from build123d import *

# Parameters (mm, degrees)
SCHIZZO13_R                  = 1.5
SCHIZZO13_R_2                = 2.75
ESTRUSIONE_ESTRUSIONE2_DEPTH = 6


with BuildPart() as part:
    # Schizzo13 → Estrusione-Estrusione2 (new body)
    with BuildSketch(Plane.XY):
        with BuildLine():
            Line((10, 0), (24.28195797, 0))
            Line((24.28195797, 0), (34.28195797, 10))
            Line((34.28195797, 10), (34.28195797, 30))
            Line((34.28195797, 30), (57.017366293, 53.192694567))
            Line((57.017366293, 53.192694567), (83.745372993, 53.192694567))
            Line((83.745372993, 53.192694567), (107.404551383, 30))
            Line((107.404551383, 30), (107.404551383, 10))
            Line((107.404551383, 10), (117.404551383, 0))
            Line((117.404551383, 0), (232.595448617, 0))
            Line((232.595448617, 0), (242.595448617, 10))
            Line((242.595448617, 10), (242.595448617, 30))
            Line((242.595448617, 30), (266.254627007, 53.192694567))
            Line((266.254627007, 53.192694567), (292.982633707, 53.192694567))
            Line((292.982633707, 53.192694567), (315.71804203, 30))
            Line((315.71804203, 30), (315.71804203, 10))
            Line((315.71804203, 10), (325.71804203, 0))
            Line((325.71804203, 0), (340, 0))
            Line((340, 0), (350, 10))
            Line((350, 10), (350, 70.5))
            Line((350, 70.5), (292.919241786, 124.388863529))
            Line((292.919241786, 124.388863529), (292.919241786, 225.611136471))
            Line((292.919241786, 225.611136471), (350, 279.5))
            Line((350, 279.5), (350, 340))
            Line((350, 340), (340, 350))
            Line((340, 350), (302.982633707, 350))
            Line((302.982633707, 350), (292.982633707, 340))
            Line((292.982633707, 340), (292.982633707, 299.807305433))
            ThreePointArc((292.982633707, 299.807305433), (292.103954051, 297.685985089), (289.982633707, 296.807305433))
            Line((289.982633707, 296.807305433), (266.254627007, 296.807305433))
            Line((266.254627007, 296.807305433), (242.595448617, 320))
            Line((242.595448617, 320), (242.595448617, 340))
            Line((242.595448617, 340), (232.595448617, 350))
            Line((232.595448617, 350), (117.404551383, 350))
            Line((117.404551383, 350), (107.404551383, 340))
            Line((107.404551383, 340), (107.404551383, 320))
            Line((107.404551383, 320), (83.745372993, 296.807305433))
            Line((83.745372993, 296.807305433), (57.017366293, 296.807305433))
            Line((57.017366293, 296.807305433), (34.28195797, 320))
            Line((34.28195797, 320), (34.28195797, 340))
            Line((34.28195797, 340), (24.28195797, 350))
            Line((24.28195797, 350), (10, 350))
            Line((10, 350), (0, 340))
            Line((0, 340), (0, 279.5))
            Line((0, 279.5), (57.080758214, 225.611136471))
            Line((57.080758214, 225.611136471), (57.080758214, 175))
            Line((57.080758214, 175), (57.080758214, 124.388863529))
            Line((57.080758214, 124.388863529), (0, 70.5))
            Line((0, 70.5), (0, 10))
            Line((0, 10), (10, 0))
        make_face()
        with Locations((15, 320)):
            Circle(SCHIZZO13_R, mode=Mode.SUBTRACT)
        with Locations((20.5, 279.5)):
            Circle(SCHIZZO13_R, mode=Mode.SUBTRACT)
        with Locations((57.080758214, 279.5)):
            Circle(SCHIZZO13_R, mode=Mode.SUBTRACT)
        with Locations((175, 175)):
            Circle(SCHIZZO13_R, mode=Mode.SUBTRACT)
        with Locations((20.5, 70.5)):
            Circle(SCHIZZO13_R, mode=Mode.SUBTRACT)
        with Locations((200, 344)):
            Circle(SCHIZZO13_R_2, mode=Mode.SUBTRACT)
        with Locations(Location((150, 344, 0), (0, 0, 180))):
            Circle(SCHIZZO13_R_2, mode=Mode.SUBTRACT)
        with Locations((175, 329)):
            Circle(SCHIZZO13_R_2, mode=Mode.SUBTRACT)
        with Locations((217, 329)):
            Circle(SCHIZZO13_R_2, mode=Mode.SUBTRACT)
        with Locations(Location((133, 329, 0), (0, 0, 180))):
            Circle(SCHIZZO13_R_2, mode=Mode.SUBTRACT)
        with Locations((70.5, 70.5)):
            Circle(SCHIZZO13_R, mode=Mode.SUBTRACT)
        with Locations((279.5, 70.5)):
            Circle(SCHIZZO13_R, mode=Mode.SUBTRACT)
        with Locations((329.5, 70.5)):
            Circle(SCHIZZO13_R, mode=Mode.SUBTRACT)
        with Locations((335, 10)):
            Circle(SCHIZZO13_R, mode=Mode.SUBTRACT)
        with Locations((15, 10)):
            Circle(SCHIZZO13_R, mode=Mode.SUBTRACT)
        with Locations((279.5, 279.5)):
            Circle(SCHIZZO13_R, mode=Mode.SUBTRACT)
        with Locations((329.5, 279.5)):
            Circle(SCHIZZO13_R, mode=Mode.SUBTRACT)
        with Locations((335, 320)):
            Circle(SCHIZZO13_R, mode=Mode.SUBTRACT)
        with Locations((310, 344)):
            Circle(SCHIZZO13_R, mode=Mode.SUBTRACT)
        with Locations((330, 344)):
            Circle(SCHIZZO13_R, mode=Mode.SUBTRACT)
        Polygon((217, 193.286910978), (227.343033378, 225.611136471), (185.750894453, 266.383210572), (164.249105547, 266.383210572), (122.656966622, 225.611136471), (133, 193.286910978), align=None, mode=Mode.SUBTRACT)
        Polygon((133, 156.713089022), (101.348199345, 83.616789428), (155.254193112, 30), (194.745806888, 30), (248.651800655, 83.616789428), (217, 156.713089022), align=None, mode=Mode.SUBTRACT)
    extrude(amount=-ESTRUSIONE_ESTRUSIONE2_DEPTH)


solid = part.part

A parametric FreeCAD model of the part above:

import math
import FreeCAD as App
import Part
import Sketcher


def add_polygon(sketch, points):
    """Adds a closed chain of lines whose ends are joined by coincident constraints."""
    first, n = sketch.GeometryCount, len(points)
    for a, b in zip(points, points[1:] + points[:1]):
        sketch.addGeometry(Part.LineSegment(App.Vector(*a, 0), App.Vector(*b, 0)), False)
    for i in range(n):
        sketch.addConstraint(Sketcher.Constraint("Coincident", first + i, 2, first + (i + 1) % n, 1))

doc = App.newDocument("Part")
body = doc.addObject("PartDesign::Body", "Body")

# Sketch on XY plane
sketch1 = body.newObject("Sketcher::SketchObject", "Sketch")
sketch1.AttachmentSupport = (doc.getObject("XY_Plane"), [""])
sketch1.MapMode = "FlatFace"
sketch1.addGeometry(Part.LineSegment(App.Vector(10, 0, 0), App.Vector(24.3, 0, 0)), False)  # 0
sketch1.addGeometry(Part.LineSegment(App.Vector(24.3, 0, 0), App.Vector(34.3, 10, 0)), False)  # 1
sketch1.addGeometry(Part.LineSegment(App.Vector(34.3, 10, 0), App.Vector(34.3, 30, 0)), False)  # 2
sketch1.addGeometry(Part.LineSegment(App.Vector(34.3, 30, 0), App.Vector(57, 53.2, 0)), False)  # 3
sketch1.addGeometry(Part.LineSegment(App.Vector(57, 53.2, 0), App.Vector(83.7, 53.2, 0)), False)  # 4
sketch1.addGeometry(Part.LineSegment(App.Vector(83.7, 53.2, 0), App.Vector(107.4, 30, 0)), False)  # 5
sketch1.addGeometry(Part.LineSegment(App.Vector(107.4, 30, 0), App.Vector(107.4, 10, 0)), False)  # 6
sketch1.addGeometry(Part.LineSegment(App.Vector(107.4, 10, 0), App.Vector(117.4, 0, 0)), False)  # 7
sketch1.addGeometry(Part.LineSegment(App.Vector(117.4, 0, 0), App.Vector(232.6, 0, 0)), False)  # 8
sketch1.addGeometry(Part.LineSegment(App.Vector(232.6, 0, 0), App.Vector(242.6, 10, 0)), False)  # 9
sketch1.addGeometry(Part.LineSegment(App.Vector(242.6, 10, 0), App.Vector(242.6, 30, 0)), False)  # 10
sketch1.addGeometry(Part.LineSegment(App.Vector(242.6, 30, 0), App.Vector(266.3, 53.2, 0)), False)  # 11
sketch1.addGeometry(Part.LineSegment(App.Vector(266.3, 53.2, 0), App.Vector(293, 53.2, 0)), False)  # 12
sketch1.addGeometry(Part.LineSegment(App.Vector(293, 53.2, 0), App.Vector(315.7, 30, 0)), False)  # 13
sketch1.addGeometry(Part.LineSegment(App.Vector(315.7, 30, 0), App.Vector(315.7, 10, 0)), False)  # 14
sketch1.addGeometry(Part.LineSegment(App.Vector(315.7, 10, 0), App.Vector(325.7, 0, 0)), False)  # 15
sketch1.addGeometry(Part.LineSegment(App.Vector(325.7, 0, 0), App.Vector(340, 0, 0)), False)  # 16
sketch1.addGeometry(Part.LineSegment(App.Vector(340, 0, 0), App.Vector(350, 10, 0)), False)  # 17
sketch1.addGeometry(Part.LineSegment(App.Vector(350, 10, 0), App.Vector(350, 70.5, 0)), False)  # 18
sketch1.addGeometry(Part.LineSegment(App.Vector(350, 70.5, 0), App.Vector(292.9, 124.4, 0)), False)  # 19
sketch1.addGeometry(Part.LineSegment(App.Vector(292.9, 124.4, 0), App.Vector(292.9, 225.6, 0)), False)  # 20
sketch1.addGeometry(Part.LineSegment(App.Vector(292.9, 225.6, 0), App.Vector(350, 279.5, 0)), False)  # 21
sketch1.addGeometry(Part.LineSegment(App.Vector(350, 279.5, 0), App.Vector(350, 340, 0)), False)  # 22
sketch1.addGeometry(Part.LineSegment(App.Vector(350, 340, 0), App.Vector(340, 350, 0)), False)  # 23
sketch1.addGeometry(Part.LineSegment(App.Vector(340, 350, 0), App.Vector(303, 350, 0)), False)  # 24
sketch1.addGeometry(Part.LineSegment(App.Vector(303, 350, 0), App.Vector(293, 340, 0)), False)  # 25
sketch1.addGeometry(Part.LineSegment(App.Vector(293, 340, 0), App.Vector(293, 299.8, 0)), False)  # 26
sketch1.addGeometry(Part.ArcOfCircle(Part.Circle(App.Vector(290, 299.8, 0), App.Vector(0, 0, 1), 3), math.radians(-90), math.radians(0)), False)  # 27
sketch1.addGeometry(Part.LineSegment(App.Vector(290, 296.8, 0), App.Vector(266.3, 296.8, 0)), False)  # 28
sketch1.addGeometry(Part.LineSegment(App.Vector(266.3, 296.8, 0), App.Vector(242.6, 320, 0)), False)  # 29
sketch1.addGeometry(Part.LineSegment(App.Vector(242.6, 320, 0), App.Vector(242.6, 340, 0)), False)  # 30
sketch1.addGeometry(Part.LineSegment(App.Vector(242.6, 340, 0), App.Vector(232.6, 350, 0)), False)  # 31
sketch1.addGeometry(Part.LineSegment(App.Vector(232.6, 350, 0), App.Vector(117.4, 350, 0)), False)  # 32
sketch1.addGeometry(Part.LineSegment(App.Vector(117.4, 350, 0), App.Vector(107.4, 340, 0)), False)  # 33
sketch1.addGeometry(Part.LineSegment(App.Vector(107.4, 340, 0), App.Vector(107.4, 320, 0)), False)  # 34
sketch1.addGeometry(Part.LineSegment(App.Vector(107.4, 320, 0), App.Vector(83.7, 296.8, 0)), False)  # 35
sketch1.addGeometry(Part.LineSegment(App.Vector(83.7, 296.8, 0), App.Vector(57, 296.8, 0)), False)  # 36
sketch1.addGeometry(Part.LineSegment(App.Vector(57, 296.8, 0), App.Vector(34.3, 320, 0)), False)  # 37
sketch1.addGeometry(Part.LineSegment(App.Vector(34.3, 320, 0), App.Vector(34.3, 340, 0)), False)  # 38
sketch1.addGeometry(Part.LineSegment(App.Vector(34.3, 340, 0), App.Vector(24.3, 350, 0)), False)  # 39
sketch1.addGeometry(Part.LineSegment(App.Vector(24.3, 350, 0), App.Vector(10, 350, 0)), False)  # 40
sketch1.addGeometry(Part.LineSegment(App.Vector(10, 350, 0), App.Vector(0, 340, 0)), False)  # 41
sketch1.addGeometry(Part.LineSegment(App.Vector(0, 340, 0), App.Vector(0, 279.5, 0)), False)  # 42
sketch1.addGeometry(Part.LineSegment(App.Vector(0, 279.5, 0), App.Vector(57.1, 225.6, 0)), False)  # 43
sketch1.addGeometry(Part.LineSegment(App.Vector(57.1, 225.6, 0), App.Vector(57.1, 124.4, 0)), False)  # 44
sketch1.addGeometry(Part.LineSegment(App.Vector(57.1, 124.4, 0), App.Vector(0, 70.5, 0)), False)  # 45
sketch1.addGeometry(Part.LineSegment(App.Vector(0, 70.5, 0), App.Vector(0, 10, 0)), False)  # 46
sketch1.addGeometry(Part.LineSegment(App.Vector(0, 10, 0), App.Vector(10, 0, 0)), False)  # 47
sketch1.addGeometry(Part.Circle(App.Vector(15, 10, 0), App.Vector(0, 0, 1), 1.5), False)  # 48
sketch1.addGeometry(Part.Circle(App.Vector(20.5, 70.5, 0), App.Vector(0, 0, 1), 1.5), False)  # 49
sketch1.addGeometry(Part.Circle(App.Vector(70.5, 70.5, 0), App.Vector(0, 0, 1), 1.5), False)  # 50
sketch1.addGeometry(Part.Circle(App.Vector(335, 10, 0), App.Vector(0, 0, 1), 1.5), False)  # 51
sketch1.addGeometry(Part.Circle(App.Vector(279.5, 70.5, 0), App.Vector(0, 0, 1), 1.5), False)  # 52
sketch1.addGeometry(Part.Circle(App.Vector(329.5, 70.5, 0), App.Vector(0, 0, 1), 1.5), False)  # 53
add_polygon(sketch1, [(101.3, 83.6), (133, 156.7), (217, 156.7), (248.7, 83.6), (194.7, 30), (155.3, 30)])  # lines 54-59
sketch1.addGeometry(Part.Circle(App.Vector(175, 175, 0), App.Vector(0, 0, 1), 1.5), False)  # 60
sketch1.addGeometry(Part.Circle(App.Vector(20.5, 279.5, 0), App.Vector(0, 0, 1), 1.5), False)  # 61
sketch1.addGeometry(Part.Circle(App.Vector(57.1, 279.5, 0), App.Vector(0, 0, 1), 1.5), False)  # 62
sketch1.addGeometry(Part.Circle(App.Vector(15, 320, 0), App.Vector(0, 0, 1), 1.5), False)  # 63
sketch1.addGeometry(Part.Circle(App.Vector(133, 329, 0), App.Vector(0, 0, 1), 2.8), False)  # 64
sketch1.addGeometry(Part.Circle(App.Vector(150, 344, 0), App.Vector(0, 0, 1), 2.8), False)  # 65
add_polygon(sketch1, [(227.3, 225.6), (217, 193.3), (133, 193.3), (122.7, 225.6), (164.2, 266.4), (185.8, 266.4)])  # lines 66-71
sketch1.addGeometry(Part.Circle(App.Vector(175, 329, 0), App.Vector(0, 0, 1), 2.8), False)  # 72
sketch1.addGeometry(Part.Circle(App.Vector(200, 344, 0), App.Vector(0, 0, 1), 2.8), False)  # 73
sketch1.addGeometry(Part.Circle(App.Vector(217, 329, 0), App.Vector(0, 0, 1), 2.8), False)  # 74
sketch1.addGeometry(Part.Circle(App.Vector(279.5, 279.5, 0), App.Vector(0, 0, 1), 1.5), False)  # 75
sketch1.addGeometry(Part.Circle(App.Vector(329.5, 279.5, 0), App.Vector(0, 0, 1), 1.5), False)  # 76
sketch1.addGeometry(Part.Circle(App.Vector(335, 320, 0), App.Vector(0, 0, 1), 1.5), False)  # 77
sketch1.addGeometry(Part.Circle(App.Vector(310, 344, 0), App.Vector(0, 0, 1), 1.5), False)  # 78
sketch1.addGeometry(Part.Circle(App.Vector(330, 344, 0), App.Vector(0, 0, 1), 1.5), False)  # 79
sketch1.addConstraint([
    Sketcher.Constraint("Coincident", 0, 2, 1, 1),
    Sketcher.Constraint("Coincident", 1, 2, 2, 1),
    Sketcher.Constraint("Coincident", 2, 2, 3, 1),
    Sketcher.Constraint("Coincident", 3, 2, 4, 1),
    Sketcher.Constraint("Coincident", 4, 2, 5, 1),
    Sketcher.Constraint("Coincident", 5, 2, 6, 1),
    Sketcher.Constraint("Coincident", 6, 2, 7, 1),
    Sketcher.Constraint("Coincident", 7, 2, 8, 1),
    Sketcher.Constraint("Coincident", 8, 2, 9, 1),
    Sketcher.Constraint("Coincident", 9, 2, 10, 1),
    Sketcher.Constraint("Coincident", 10, 2, 11, 1),
    Sketcher.Constraint("Coincident", 11, 2, 12, 1),
    Sketcher.Constraint("Coincident", 12, 2, 13, 1),
    Sketcher.Constraint("Coincident", 13, 2, 14, 1),
    Sketcher.Constraint("Coincident", 14, 2, 15, 1),
    Sketcher.Constraint("Coincident", 15, 2, 16, 1),
    Sketcher.Constraint("Coincident", 16, 2, 17, 1),
    Sketcher.Constraint("Coincident", 17, 2, 18, 1),
    Sketcher.Constraint("Coincident", 18, 2, 19, 1),
    Sketcher.Constraint("Coincident", 19, 2, 20, 1),
    Sketcher.Constraint("Coincident", 20, 2, 21, 1),
    Sketcher.Constraint("Coincident", 21, 2, 22, 1),
    Sketcher.Constraint("Coincident", 22, 2, 23, 1),
    Sketcher.Constraint("Coincident", 23, 2, 24, 1),
    Sketcher.Constraint("Coincident", 24, 2, 25, 1),
    Sketcher.Constraint("Coincident", 25, 2, 26, 1),
    Sketcher.Constraint("Tangent", 26, 2, 27, 2),
    Sketcher.Constraint("Tangent", 27, 1, 28, 1),
    Sketcher.Constraint("Coincident", 28, 2, 29, 1),
    Sketcher.Constraint("Coincident", 29, 2, 30, 1),
    Sketcher.Constraint("Coincident", 30, 2, 31, 1),
    Sketcher.Constraint("Coincident", 31, 2, 32, 1),
    Sketcher.Constraint("Coincident", 32, 2, 33, 1),
    Sketcher.Constraint("Coincident", 33, 2, 34, 1),
    Sketcher.Constraint("Coincident", 34, 2, 35, 1),
    Sketcher.Constraint("Coincident", 35, 2, 36, 1),
    Sketcher.Constraint("Coincident", 36, 2, 37, 1),
    Sketcher.Constraint("Coincident", 37, 2, 38, 1),
    Sketcher.Constraint("Coincident", 38, 2, 39, 1),
    Sketcher.Constraint("Coincident", 39, 2, 40, 1),
    Sketcher.Constraint("Coincident", 40, 2, 41, 1),
    Sketcher.Constraint("Coincident", 41, 2, 42, 1),
    Sketcher.Constraint("Coincident", 42, 2, 43, 1),
    Sketcher.Constraint("Coincident", 43, 2, 44, 1),
    Sketcher.Constraint("Coincident", 44, 2, 45, 1),
    Sketcher.Constraint("Coincident", 45, 2, 46, 1),
    Sketcher.Constraint("Coincident", 46, 2, 47, 1),
    Sketcher.Constraint("Coincident", 47, 2, 0, 1),
    Sketcher.Constraint("Horizontal", 0),
    Sketcher.Constraint("Vertical", 2),
    Sketcher.Constraint("Horizontal", 4),
    Sketcher.Constraint("Vertical", 6),
    Sketcher.Constraint("Horizontal", 8),
    Sketcher.Constraint("Vertical", 10),
    Sketcher.Constraint("Horizontal", 12),
    Sketcher.Constraint("Vertical", 14),
    Sketcher.Constraint("Horizontal", 16),
    Sketcher.Constraint("Vertical", 18),
    Sketcher.Constraint("Vertical", 20),
    Sketcher.Constraint("Vertical", 22),
    Sketcher.Constraint("Horizontal", 24),
    Sketcher.Constraint("Vertical", 26),
    Sketcher.Constraint("Horizontal", 28),
    Sketcher.Constraint("Vertical", 30),
    Sketcher.Constraint("Horizontal", 32),
    Sketcher.Constraint("Vertical", 34),
    Sketcher.Constraint("Horizontal", 36),
    Sketcher.Constraint("Vertical", 38),
    Sketcher.Constraint("Horizontal", 40),
    Sketcher.Constraint("Vertical", 42),
    Sketcher.Constraint("Vertical", 44),
    Sketcher.Constraint("Vertical", 46),
    Sketcher.Constraint("Horizontal", 55),
    Sketcher.Constraint("Horizontal", 58),
    Sketcher.Constraint("Horizontal", 67),
    Sketcher.Constraint("Horizontal", 70),
    Sketcher.Constraint("Equal", 48, 49),
    Sketcher.Constraint("Equal", 49, 50),
    Sketcher.Constraint("Equal", 50, 51),
    Sketcher.Constraint("Equal", 51, 52),
    Sketcher.Constraint("Equal", 52, 53),
    Sketcher.Constraint("Equal", 53, 60),
    Sketcher.Constraint("Equal", 60, 61),
    Sketcher.Constraint("Equal", 61, 62),
    Sketcher.Constraint("Equal", 62, 63),
    Sketcher.Constraint("Equal", 64, 65),
    Sketcher.Constraint("Equal", 65, 72),
    Sketcher.Constraint("Equal", 72, 73),
    Sketcher.Constraint("Equal", 73, 74),
    Sketcher.Constraint("Equal", 63, 75),
    Sketcher.Constraint("Equal", 75, 76),
    Sketcher.Constraint("Equal", 76, 77),
    Sketcher.Constraint("Equal", 77, 78),
    Sketcher.Constraint("Equal", 78, 79),
    Sketcher.Constraint("PointOnObject", 0, 2, -1),
    Sketcher.Constraint("PointOnObject", 7, 2, -1),
    Sketcher.Constraint("PointOnObject", 15, 2, -1),
    Sketcher.Constraint("PointOnObject", 41, 2, -2),
    Sketcher.Constraint("PointOnObject", 45, 2, -2),
    Sketcher.Constraint("Perpendicular", 3, 5),
    Sketcher.Constraint("Perpendicular", 1, 7),
    Sketcher.Constraint("Perpendicular", 7, 9),
    Sketcher.Constraint("Perpendicular", 11, 13),
    Sketcher.Constraint("Perpendicular", 9, 15),
    Sketcher.Constraint("Perpendicular", 15, 17),
    Sketcher.Constraint("Perpendicular", 17, 23),
    Sketcher.Constraint("Perpendicular", 23, 25),
    Sketcher.Constraint("Parallel", 5, 29),
    Sketcher.Constraint("Perpendicular", 25, 31),
    Sketcher.Constraint("Perpendicular", 31, 33),
    Sketcher.Constraint("Perpendicular", 13, 35),
    Sketcher.Constraint("Perpendicular", 35, 37),
    Sketcher.Constraint("Perpendicular", 33, 39),
    Sketcher.Constraint("Perpendicular", 39, 41),
    Sketcher.Constraint("Parallel", 19, 43),
    Sketcher.Constraint("Parallel", 21, 45),
    Sketcher.Constraint("Perpendicular", 41, 47),
    Sketcher.Constraint("Perpendicular", 37, 69),
    Sketcher.Constraint("Parallel", 29, 71),
    Sketcher.Constraint("Horizontal", 49, 3, 50, 3),
    Sketcher.Constraint("Horizontal", 48, 3, 51, 3),
    Sketcher.Constraint("Horizontal", 50, 3, 52, 3),
    Sketcher.Constraint("Horizontal", 52, 3, 53, 3),
    Sketcher.Constraint("Horizontal", 61, 3, 62, 3),
    Sketcher.Constraint("Horizontal", 64, 3, 72, 3),
    Sketcher.Constraint("Horizontal", 65, 3, 73, 3),
    Sketcher.Constraint("Horizontal", 72, 3, 74, 3),
    Sketcher.Constraint("Horizontal", 62, 3, 75, 3),
    Sketcher.Constraint("Horizontal", 75, 3, 76, 3),
    Sketcher.Constraint("Horizontal", 63, 3, 77, 3),
    Sketcher.Constraint("Horizontal", 73, 3, 78, 3),
    Sketcher.Constraint("Horizontal", 78, 3, 79, 3),
    Sketcher.Constraint("Horizontal", 51, 3, 1, 2),
    Sketcher.Constraint("Horizontal", 2, 2, 5, 2),
    Sketcher.Constraint("Horizontal", 1, 2, 6, 2),
    Sketcher.Constraint("Horizontal", 6, 2, 9, 2),
    Sketcher.Constraint("Horizontal", 5, 2, 10, 2),
    Sketcher.Constraint("Horizontal", 4, 2, 11, 2),
    Sketcher.Constraint("Horizontal", 10, 2, 13, 2),
    Sketcher.Constraint("Horizontal", 9, 2, 14, 2),
    Sketcher.Constraint("Horizontal", 14, 2, 17, 2),
    Sketcher.Constraint("Horizontal", 53, 3, 18, 2),
    Sketcher.Constraint("Horizontal", 76, 3, 21, 2),
    Sketcher.Constraint("Horizontal", 22, 2, 25, 2),
    Sketcher.Constraint("Horizontal", 77, 3, 29, 2),
    Sketcher.Constraint("Horizontal", 25, 2, 30, 2),
    Sketcher.Constraint("Horizontal", 24, 2, 31, 2),
    Sketcher.Constraint("Horizontal", 30, 2, 33, 2),
    Sketcher.Constraint("Horizontal", 29, 2, 34, 2),
    Sketcher.Constraint("Horizontal", 28, 2, 35, 2),
    Sketcher.Constraint("Horizontal", 34, 2, 37, 2),
    Sketcher.Constraint("Horizontal", 33, 2, 38, 2),
    Sketcher.Constraint("Horizontal", 32, 2, 39, 2),
    Sketcher.Constraint("Horizontal", 38, 2, 41, 2),
    Sketcher.Constraint("Horizontal", 21, 2, 42, 2),
    Sketcher.Constraint("Horizontal", 20, 2, 43, 2),
    Sketcher.Constraint("Horizontal", 19, 2, 44, 2),
    Sketcher.Constraint("Horizontal", 18, 2, 45, 2),
    Sketcher.Constraint("Horizontal", 17, 2, 46, 2),
    Sketcher.Constraint("Horizontal", 13, 2, 57, 2),
    Sketcher.Constraint("Horizontal", 56, 2, 59, 2),
    Sketcher.Constraint("Horizontal", 43, 2, 68, 2),
    Sketcher.Constraint("Horizontal", 68, 2, 71, 2),
    Sketcher.Constraint("Vertical", 49, 3, 61, 3),
    Sketcher.Constraint("Vertical", 48, 3, 63, 3),
    Sketcher.Constraint("Vertical", 60, 3, 72, 3),
    Sketcher.Constraint("Vertical", 52, 3, 75, 3),
    Sketcher.Constraint("Vertical", 53, 3, 76, 3),
    Sketcher.Constraint("Vertical", 51, 3, 77, 3),
    Sketcher.Constraint("Vertical", 18, 2, 21, 2),
    Sketcher.Constraint("Vertical", 16, 2, 23, 2),
    Sketcher.Constraint("Vertical", 12, 2, 25, 2),
    Sketcher.Constraint("Vertical", 11, 2, 28, 2),
    Sketcher.Constraint("Vertical", 10, 2, 29, 2),
    Sketcher.Constraint("Vertical", 7, 2, 32, 2),
    Sketcher.Constraint("Vertical", 6, 2, 33, 2),
    Sketcher.Constraint("Vertical", 4, 2, 35, 2),
    Sketcher.Constraint("Vertical", 3, 2, 36, 2),
    Sketcher.Constraint("Vertical", 62, 3, 43, 2),
    Sketcher.Constraint("Vertical", 64, 3, 54, 2),
    Sketcher.Constraint("Vertical", 74, 3, 55, 2),
    Sketcher.Constraint("Vertical", 55, 2, 66, 2),
    Sketcher.Constraint("Vertical", 54, 2, 67, 2),
    Sketcher.Constraint("Equal", 4, 12),
    Sketcher.Constraint("Equal", 0, 16),
    Sketcher.Constraint("Equal", 18, 22),
    Sketcher.Constraint("Equal", 14, 30),
    Sketcher.Constraint("Equal", 54, 56),
    Sketcher.Constraint("Equal", 57, 59),
    Sketcher.Constraint("Equal", 66, 68),
    Sketcher.Constraint("Diameter", 48, 3.0),
    Sketcher.Constraint("Radius", 27, 3.0),
    Sketcher.Constraint("Diameter", 64, 5.5),
    Sketcher.Constraint("DistanceX", 55, 1, 55, 2, 84.0),
    Sketcher.Constraint("DistanceY", 2, 1, 2, 2, 20.0),
    Sketcher.Constraint("DistanceY", 18, 1, 18, 2, 60.5),
    Sketcher.Constraint("DistanceX", -1, 1, 48, 3, 15.0),
    Sketcher.Constraint("DistanceY", -1, 1, 48, 3, 10.0),
    Sketcher.Constraint("DistanceX", -1, 1, 51, 3, 335.0),
    Sketcher.Constraint("DistanceX", -1, 1, 60, 3, 175.0),
    Sketcher.Constraint("DistanceY", -1, 1, 60, 3, 175.0),
    Sketcher.Constraint("DistanceY", -1, 1, 63, 3, 320.0),
    Sketcher.Constraint("DistanceX", -1, 1, 64, 3, 133.0),
    Sketcher.Constraint("DistanceY", -1, 1, 64, 3, 329.0),
    Sketcher.Constraint("DistanceX", -1, 1, 65, 3, 150.0),
    Sketcher.Constraint("DistanceY", -1, 1, 65, 3, 344.0),
    Sketcher.Constraint("DistanceX", -1, 1, 73, 3, 200.0),
    Sketcher.Constraint("DistanceX", -1, 1, 78, 3, 310.0),
    Sketcher.Constraint("DistanceX", -1, 1, 79, 3, 330.0),
    Sketcher.Constraint("DistanceX", -1, 1, 16, 2, 340.0),
    Sketcher.Constraint("DistanceX", -1, 1, 49, 3, 20.5),
    Sketcher.Constraint("DistanceX", -1, 1, 50, 3, 70.5),
    Sketcher.Constraint("DistanceX", -1, 1, 52, 3, 279.5),
    Sketcher.Constraint("DistanceX", -1, 1, 53, 3, 329.5),
    Sketcher.Constraint("DistanceX", 70, 1, 70, 2, 21.501789),
    Sketcher.Constraint("DistanceX", -1, 1, 56, 2, 248.651801),
    Sketcher.Constraint("Distance", 5, 33.130919),
    Sketcher.Constraint("Distance", 66, 33.938678),
    Sketcher.Constraint("Distance", 69, 58.24318),
    Sketcher.Constraint("DistanceX", 0, 1, 0, 2, 14.281958),
    Sketcher.Constraint("DistanceX", 4, 1, 4, 2, 26.728007),
    Sketcher.Constraint("DistanceX", 8, 1, 8, 2, 115.190897),
    Sketcher.Constraint("DistanceX", 58, 2, 58, 1, 39.491614),
    Sketcher.Constraint("DistanceY", 20, 1, 20, 2, 101.222273),
    Sketcher.Constraint("DistanceX", -1, 1, 62, 3, 57.080758),
    Sketcher.Constraint("DistanceY", -1, 1, 54, 2, 156.713089),
    Sketcher.Constraint("DistanceY", -1, 1, 56, 2, 83.616789),
])
pad1 = body.newObject("PartDesign::Pad", "Pad")
pad1.Profile = sketch1
pad1.Length = 6
pad1.Reversed = True

doc.recompute()
